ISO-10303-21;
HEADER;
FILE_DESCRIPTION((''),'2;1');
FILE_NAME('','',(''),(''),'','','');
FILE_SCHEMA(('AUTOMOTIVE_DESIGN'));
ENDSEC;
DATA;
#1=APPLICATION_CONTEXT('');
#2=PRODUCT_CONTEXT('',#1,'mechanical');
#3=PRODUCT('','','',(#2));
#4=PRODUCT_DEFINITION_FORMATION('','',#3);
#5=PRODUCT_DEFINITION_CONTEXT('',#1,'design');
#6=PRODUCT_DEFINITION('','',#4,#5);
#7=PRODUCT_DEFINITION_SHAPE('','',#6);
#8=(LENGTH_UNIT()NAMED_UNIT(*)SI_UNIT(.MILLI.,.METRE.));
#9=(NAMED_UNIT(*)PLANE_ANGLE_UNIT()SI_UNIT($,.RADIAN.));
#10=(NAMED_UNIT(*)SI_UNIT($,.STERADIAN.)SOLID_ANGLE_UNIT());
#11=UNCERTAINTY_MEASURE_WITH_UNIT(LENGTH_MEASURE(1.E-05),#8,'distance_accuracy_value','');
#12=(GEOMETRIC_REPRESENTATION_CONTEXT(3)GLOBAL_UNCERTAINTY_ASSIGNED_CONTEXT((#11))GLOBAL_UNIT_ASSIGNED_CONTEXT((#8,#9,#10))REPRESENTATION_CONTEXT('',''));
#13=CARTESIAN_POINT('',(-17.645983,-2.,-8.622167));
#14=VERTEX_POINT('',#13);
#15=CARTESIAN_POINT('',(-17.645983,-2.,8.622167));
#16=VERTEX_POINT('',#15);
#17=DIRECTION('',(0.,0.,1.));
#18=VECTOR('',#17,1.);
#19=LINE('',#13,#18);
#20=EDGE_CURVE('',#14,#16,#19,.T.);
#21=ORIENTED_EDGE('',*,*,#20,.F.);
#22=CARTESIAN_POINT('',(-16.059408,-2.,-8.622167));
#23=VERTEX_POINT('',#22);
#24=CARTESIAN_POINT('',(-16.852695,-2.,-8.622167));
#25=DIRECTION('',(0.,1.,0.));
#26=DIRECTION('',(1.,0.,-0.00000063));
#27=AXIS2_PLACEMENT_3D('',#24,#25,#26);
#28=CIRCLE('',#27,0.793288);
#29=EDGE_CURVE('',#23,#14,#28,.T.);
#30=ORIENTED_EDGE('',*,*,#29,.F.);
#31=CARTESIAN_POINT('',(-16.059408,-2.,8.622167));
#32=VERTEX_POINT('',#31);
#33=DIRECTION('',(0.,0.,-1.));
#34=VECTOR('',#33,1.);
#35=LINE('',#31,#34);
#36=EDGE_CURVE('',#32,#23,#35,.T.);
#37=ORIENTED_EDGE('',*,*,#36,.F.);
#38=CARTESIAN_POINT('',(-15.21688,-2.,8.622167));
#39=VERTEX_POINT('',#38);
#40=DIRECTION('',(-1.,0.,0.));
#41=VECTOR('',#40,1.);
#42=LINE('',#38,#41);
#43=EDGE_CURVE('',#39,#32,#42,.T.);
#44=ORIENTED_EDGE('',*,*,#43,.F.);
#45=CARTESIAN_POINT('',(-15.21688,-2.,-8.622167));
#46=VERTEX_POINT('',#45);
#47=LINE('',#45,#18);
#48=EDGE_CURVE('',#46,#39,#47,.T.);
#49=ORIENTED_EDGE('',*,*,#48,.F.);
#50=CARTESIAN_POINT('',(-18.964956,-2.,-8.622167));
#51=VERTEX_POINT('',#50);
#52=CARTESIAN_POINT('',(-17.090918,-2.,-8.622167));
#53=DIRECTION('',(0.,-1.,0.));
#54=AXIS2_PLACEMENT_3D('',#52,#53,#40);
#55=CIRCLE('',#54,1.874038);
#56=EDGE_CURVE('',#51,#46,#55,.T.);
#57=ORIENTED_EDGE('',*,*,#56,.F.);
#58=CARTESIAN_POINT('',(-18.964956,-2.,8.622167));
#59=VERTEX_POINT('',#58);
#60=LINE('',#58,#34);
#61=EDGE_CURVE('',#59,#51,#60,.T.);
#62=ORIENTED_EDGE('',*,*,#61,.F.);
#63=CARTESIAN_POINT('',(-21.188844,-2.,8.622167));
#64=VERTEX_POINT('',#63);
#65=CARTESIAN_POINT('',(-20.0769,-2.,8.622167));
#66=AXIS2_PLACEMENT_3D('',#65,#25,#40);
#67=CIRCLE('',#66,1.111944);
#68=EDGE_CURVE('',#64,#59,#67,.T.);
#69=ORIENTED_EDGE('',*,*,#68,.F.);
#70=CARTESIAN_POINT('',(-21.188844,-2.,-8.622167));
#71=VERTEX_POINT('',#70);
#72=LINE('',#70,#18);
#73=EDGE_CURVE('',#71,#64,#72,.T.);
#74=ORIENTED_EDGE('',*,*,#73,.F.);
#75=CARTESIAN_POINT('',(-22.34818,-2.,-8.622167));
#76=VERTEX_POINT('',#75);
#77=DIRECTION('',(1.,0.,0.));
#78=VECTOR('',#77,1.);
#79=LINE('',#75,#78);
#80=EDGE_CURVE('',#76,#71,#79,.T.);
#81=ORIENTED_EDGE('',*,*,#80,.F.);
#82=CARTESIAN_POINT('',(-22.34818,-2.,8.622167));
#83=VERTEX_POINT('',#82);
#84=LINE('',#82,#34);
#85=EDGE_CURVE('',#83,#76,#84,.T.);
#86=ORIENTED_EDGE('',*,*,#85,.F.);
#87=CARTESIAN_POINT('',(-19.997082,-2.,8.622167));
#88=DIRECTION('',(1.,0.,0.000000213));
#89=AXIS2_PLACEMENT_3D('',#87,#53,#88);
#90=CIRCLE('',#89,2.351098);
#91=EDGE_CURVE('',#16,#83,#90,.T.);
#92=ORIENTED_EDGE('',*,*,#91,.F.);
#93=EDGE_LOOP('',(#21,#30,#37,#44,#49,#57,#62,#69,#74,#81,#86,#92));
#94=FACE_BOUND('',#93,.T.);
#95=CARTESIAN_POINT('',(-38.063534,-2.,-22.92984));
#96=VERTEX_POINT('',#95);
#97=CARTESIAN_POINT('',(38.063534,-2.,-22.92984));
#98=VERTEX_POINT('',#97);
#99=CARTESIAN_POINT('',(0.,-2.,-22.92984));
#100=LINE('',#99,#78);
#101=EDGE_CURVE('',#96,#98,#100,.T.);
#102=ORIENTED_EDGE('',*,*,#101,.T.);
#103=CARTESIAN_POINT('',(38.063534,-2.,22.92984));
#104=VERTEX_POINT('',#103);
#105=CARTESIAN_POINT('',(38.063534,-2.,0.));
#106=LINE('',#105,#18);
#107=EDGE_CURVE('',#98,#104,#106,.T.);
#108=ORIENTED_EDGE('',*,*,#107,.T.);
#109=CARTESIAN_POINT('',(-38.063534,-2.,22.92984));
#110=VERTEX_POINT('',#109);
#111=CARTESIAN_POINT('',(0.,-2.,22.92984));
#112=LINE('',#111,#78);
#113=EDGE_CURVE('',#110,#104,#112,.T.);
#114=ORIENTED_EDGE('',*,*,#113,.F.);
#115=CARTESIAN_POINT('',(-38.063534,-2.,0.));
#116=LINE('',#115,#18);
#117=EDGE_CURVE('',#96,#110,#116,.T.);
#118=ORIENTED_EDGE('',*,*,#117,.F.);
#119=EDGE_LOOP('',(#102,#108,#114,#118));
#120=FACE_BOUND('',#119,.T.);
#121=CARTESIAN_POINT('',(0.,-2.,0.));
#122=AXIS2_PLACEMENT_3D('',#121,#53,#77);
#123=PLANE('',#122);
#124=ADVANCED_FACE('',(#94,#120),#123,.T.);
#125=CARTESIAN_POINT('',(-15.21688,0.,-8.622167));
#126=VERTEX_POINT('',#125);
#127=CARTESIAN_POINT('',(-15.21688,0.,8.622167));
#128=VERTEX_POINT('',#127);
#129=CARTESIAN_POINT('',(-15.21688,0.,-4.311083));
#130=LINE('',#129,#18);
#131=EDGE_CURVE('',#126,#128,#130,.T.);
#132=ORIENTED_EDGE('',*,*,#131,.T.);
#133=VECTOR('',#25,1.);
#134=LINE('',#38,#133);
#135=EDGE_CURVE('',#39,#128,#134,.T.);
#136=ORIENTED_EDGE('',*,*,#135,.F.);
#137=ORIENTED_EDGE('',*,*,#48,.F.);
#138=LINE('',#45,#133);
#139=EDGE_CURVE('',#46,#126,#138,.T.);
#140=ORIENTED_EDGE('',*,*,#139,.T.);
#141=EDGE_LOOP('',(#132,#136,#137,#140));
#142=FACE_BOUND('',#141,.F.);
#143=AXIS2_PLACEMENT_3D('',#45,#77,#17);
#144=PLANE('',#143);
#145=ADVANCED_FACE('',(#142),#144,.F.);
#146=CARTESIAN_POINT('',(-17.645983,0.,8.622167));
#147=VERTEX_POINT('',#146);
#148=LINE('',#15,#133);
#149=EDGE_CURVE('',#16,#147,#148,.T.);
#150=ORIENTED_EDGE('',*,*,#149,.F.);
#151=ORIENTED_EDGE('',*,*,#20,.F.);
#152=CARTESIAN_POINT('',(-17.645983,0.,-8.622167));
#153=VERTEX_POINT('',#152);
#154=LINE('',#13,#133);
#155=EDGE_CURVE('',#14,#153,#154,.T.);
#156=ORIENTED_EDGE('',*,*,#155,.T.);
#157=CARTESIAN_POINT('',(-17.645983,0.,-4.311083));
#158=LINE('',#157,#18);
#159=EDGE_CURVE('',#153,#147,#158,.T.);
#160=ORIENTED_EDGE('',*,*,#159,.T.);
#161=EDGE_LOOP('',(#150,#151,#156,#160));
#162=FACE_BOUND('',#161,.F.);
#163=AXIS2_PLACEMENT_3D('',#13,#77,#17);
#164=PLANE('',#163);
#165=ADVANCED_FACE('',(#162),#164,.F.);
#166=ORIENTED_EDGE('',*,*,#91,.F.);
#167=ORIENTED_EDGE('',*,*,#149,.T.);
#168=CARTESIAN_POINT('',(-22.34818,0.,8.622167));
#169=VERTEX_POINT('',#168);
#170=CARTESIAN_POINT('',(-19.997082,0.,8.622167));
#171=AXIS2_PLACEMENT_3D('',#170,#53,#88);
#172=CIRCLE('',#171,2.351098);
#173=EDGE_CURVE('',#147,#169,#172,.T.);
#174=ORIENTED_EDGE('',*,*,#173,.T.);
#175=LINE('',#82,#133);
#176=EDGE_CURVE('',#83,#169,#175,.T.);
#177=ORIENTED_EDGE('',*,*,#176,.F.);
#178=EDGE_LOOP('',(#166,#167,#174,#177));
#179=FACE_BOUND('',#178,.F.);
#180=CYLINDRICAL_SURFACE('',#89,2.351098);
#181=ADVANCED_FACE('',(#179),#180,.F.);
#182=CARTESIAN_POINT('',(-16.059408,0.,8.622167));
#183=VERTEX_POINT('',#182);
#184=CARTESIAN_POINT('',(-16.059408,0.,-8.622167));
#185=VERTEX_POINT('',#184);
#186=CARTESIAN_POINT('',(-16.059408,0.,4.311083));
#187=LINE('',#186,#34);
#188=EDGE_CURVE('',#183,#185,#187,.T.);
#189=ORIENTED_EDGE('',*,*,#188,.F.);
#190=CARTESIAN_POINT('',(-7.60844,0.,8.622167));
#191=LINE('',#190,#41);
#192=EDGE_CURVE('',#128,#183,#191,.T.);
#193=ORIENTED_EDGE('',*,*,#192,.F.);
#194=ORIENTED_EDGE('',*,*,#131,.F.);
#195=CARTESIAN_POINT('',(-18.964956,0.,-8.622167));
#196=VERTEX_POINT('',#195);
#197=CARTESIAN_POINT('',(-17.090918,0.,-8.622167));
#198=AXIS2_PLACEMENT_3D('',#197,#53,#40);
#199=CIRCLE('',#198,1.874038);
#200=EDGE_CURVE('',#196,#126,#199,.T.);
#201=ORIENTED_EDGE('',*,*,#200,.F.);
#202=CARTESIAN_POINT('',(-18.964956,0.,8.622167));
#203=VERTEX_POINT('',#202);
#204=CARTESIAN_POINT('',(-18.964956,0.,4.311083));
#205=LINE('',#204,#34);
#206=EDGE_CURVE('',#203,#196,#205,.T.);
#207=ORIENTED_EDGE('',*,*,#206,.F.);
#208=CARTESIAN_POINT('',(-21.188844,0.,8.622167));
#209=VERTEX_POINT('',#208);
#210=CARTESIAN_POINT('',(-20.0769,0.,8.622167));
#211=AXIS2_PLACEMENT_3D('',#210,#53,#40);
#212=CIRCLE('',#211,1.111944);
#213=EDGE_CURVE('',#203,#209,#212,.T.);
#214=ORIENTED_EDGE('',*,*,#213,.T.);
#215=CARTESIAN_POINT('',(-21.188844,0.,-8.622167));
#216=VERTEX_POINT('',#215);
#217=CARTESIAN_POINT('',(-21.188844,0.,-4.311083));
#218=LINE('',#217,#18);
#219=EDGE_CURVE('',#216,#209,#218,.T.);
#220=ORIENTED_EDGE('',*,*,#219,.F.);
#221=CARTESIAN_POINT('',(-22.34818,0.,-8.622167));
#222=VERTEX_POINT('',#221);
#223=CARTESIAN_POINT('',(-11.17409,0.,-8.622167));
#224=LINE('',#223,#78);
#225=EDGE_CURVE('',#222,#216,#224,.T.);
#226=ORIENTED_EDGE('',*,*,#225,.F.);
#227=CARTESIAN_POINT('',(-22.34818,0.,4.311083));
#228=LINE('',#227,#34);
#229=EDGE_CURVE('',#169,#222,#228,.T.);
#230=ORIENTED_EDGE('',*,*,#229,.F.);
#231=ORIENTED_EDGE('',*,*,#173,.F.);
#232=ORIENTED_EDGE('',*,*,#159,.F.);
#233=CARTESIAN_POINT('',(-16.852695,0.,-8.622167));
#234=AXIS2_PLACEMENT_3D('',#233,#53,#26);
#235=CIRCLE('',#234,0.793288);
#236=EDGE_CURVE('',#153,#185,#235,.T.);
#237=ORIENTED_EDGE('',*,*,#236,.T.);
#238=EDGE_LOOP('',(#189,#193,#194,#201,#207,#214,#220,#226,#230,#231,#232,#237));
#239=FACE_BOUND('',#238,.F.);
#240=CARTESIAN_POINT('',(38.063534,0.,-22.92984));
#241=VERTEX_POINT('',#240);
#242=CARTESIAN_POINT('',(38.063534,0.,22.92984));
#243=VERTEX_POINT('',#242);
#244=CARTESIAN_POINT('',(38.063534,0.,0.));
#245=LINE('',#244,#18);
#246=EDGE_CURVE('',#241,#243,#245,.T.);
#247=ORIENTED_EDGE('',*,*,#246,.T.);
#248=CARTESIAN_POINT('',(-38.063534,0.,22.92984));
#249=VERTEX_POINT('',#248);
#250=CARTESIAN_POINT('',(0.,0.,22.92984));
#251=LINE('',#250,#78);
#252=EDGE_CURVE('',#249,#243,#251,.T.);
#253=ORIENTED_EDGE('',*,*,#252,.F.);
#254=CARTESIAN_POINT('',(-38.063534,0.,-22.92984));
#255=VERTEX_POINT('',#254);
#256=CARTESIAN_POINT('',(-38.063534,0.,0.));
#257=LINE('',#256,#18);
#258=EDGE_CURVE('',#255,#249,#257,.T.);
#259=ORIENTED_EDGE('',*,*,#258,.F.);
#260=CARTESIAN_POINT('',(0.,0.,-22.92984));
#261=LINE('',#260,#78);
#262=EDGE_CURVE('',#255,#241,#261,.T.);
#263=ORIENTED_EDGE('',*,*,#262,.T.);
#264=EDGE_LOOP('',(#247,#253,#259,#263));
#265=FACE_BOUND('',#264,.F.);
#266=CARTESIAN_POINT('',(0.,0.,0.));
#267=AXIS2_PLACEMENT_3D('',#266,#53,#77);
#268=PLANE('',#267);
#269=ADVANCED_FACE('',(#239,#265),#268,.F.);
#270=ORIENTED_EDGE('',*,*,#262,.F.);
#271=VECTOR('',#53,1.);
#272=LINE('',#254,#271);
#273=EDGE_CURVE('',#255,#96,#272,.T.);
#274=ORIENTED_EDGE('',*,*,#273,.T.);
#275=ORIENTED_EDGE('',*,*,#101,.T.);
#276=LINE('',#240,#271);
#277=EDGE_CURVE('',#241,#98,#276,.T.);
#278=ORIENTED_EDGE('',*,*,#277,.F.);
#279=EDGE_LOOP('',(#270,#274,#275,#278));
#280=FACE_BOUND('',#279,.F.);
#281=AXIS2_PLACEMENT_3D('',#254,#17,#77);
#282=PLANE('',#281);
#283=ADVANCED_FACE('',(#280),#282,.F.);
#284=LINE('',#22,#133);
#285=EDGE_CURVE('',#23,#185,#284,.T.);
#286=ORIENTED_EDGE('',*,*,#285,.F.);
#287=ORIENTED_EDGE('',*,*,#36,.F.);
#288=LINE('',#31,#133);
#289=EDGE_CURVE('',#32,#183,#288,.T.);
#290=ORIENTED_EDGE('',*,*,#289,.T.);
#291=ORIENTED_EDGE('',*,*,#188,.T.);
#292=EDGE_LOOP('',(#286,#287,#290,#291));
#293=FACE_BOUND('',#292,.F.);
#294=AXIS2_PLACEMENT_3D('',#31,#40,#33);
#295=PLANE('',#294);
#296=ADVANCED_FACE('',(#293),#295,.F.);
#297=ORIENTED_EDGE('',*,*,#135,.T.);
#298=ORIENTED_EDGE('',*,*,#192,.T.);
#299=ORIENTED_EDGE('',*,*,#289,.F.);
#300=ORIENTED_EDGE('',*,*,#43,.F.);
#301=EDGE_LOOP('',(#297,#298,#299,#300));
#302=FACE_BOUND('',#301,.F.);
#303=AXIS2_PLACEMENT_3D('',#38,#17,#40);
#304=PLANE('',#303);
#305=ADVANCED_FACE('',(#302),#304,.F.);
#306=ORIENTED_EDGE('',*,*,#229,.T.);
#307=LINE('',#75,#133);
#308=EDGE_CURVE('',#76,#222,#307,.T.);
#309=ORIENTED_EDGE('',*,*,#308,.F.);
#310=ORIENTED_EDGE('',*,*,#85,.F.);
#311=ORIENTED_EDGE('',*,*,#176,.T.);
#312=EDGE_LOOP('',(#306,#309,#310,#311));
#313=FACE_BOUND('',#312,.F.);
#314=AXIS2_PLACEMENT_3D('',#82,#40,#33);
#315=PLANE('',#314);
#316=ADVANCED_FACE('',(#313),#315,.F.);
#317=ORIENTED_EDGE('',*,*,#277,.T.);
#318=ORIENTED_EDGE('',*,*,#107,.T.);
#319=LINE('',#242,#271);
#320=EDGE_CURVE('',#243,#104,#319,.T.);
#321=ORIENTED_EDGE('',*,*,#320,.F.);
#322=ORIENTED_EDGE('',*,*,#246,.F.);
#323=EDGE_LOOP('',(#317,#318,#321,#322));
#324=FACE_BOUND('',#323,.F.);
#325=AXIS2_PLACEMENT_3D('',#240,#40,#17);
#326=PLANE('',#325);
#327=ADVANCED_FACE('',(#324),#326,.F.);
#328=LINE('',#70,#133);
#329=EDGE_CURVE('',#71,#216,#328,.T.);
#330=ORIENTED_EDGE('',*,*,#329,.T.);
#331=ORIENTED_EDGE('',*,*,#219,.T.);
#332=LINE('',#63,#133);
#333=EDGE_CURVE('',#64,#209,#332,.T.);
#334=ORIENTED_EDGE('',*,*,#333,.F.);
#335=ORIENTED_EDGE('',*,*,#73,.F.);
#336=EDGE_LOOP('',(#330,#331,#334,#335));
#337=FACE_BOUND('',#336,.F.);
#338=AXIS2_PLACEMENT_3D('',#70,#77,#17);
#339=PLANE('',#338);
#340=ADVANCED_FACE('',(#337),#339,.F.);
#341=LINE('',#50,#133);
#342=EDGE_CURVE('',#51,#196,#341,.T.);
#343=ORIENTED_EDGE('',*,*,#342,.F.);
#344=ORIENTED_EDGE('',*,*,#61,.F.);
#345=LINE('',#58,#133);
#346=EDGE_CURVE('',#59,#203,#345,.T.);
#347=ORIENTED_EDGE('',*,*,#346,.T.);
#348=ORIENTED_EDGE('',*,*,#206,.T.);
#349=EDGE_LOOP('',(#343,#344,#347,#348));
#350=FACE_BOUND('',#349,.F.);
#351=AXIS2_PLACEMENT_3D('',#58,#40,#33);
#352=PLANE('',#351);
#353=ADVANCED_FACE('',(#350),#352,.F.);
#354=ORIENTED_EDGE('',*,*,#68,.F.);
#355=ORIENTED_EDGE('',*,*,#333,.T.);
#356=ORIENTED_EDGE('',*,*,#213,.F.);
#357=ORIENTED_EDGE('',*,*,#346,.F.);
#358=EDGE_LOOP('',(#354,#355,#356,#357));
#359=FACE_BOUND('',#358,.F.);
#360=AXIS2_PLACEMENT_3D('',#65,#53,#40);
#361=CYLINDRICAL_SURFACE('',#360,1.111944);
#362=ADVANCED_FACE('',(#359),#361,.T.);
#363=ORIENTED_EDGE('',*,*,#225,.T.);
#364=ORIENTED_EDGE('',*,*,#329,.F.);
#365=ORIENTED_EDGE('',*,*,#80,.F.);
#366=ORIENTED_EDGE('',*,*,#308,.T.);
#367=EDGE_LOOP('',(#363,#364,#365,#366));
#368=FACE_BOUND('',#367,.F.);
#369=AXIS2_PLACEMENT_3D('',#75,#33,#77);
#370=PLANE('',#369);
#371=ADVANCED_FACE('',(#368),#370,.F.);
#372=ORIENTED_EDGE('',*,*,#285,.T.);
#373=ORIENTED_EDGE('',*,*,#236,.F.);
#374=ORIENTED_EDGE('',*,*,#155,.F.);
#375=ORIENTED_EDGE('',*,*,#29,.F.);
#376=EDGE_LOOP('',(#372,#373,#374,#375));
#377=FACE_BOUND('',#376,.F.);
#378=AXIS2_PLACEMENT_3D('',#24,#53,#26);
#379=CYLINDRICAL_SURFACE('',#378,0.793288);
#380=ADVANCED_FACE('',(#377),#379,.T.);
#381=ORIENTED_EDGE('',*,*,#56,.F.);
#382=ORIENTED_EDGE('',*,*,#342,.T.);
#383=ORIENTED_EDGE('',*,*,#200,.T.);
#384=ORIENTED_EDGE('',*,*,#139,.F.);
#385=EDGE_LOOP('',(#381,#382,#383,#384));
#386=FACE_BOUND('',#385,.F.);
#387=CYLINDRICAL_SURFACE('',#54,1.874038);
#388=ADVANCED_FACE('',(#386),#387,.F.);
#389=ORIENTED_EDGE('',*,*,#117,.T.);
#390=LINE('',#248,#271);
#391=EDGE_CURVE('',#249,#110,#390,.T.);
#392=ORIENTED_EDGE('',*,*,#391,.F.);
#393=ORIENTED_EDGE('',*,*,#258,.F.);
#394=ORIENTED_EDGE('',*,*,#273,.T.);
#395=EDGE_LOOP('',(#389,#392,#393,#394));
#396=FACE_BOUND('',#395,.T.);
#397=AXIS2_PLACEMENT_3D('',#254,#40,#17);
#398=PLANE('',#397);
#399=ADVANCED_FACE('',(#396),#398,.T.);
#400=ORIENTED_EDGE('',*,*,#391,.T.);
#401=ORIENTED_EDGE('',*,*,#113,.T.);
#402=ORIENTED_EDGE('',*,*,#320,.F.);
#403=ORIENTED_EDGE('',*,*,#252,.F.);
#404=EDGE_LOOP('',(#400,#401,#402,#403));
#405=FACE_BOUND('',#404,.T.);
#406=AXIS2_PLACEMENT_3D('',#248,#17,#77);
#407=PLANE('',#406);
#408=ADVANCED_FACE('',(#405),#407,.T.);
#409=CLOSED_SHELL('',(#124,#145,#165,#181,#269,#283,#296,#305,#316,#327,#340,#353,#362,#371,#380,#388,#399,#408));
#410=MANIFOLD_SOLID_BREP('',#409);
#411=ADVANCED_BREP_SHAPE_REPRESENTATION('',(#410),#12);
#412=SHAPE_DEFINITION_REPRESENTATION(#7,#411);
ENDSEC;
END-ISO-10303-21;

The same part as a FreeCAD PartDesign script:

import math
import FreeCAD as App
import Part
import Sketcher
Q = App.Units.Quantity

doc = App.newDocument("Part")
params = doc.addObject("Spreadsheet::Sheet", "Params")
for row, (alias, value) in enumerate([
    ("pad1_length", "2 mm"),
], start=1):
    params.set(f"A{row}", alias)
    params.set(f"B{row}", "=" + value)
    params.setAlias(f"B{row}", alias)

body = doc.addObject("PartDesign::Body", "Body")

sketch1 = body.newObject("Sketcher::SketchObject", "Sketch")
sketch1.AttachmentSupport = (doc.getObject("XZ_Plane"), [""])
sketch1.MapMode = "FlatFace"
sketch1.addGeometry(Part.LineSegment(App.Vector(-38, 23, 0), App.Vector(-38, -23, 0)), False)
sketch1.addGeometry(Part.LineSegment(App.Vector(-38, -23, 0), App.Vector(38, -23, 0)), False)
sketch1.addGeometry(Part.LineSegment(App.Vector(38, -23, 0), App.Vector(38, 23, 0)), False)
sketch1.addGeometry(Part.LineSegment(App.Vector(38, 23, 0), App.Vector(-38, 23, 0)), False)
sketch1.addConstraint(Sketcher.Constraint("Coincident", 0, 2, 1, 1))
sketch1.addConstraint(Sketcher.Constraint("Coincident", 1, 2, 2, 1))
sketch1.addConstraint(Sketcher.Constraint("Coincident", 2, 2, 3, 1))
sketch1.addConstraint(Sketcher.Constraint("Coincident", 3, 2, 0, 1))
sketch1.addConstraint(Sketcher.Constraint("Vertical", 0))
sketch1.addConstraint(Sketcher.Constraint("Horizontal", 1))
sketch1.addConstraint(Sketcher.Constraint("Vertical", 2))
sketch1.addConstraint(Sketcher.Constraint("Horizontal", 3))
sketch1.addConstraint(Sketcher.Constraint("Symmetric", 0, 2, 2, 2, -1, 1))
sketch1.addConstraint(Sketcher.Constraint("DistanceY", 0, 2, 0, 1, Q("45.85968 mm")))
sketch1.addConstraint(Sketcher.Constraint("DistanceX", 1, 1, 1, 2, Q("76.127068 mm")))
pad1 = body.newObject("PartDesign::Pad", "Pad")
pad1.Profile = sketch1
pad1.setExpression("Length", "Params.pad1_length")

sketch2 = body.newObject("Sketcher::SketchObject", "Sketch001")
sketch2.AttachmentSupport = (doc.getObject("XZ_Plane"), [""])
sketch2.MapMode = "FlatFace"
sketch2.AttachmentOffset = App.Placement(App.Vector(0, 0, 2), App.Rotation())
sketch2.addGeometry(Part.LineSegment(App.Vector(-22.3, -8.6, 0), App.Vector(-21.2, -8.6, 0)), False)
sketch2.addGeometry(Part.LineSegment(App.Vector(-21.2, -8.6, 0), App.Vector(-21.2, 8.6, 0)), False)
sketch2.addGeometry(Part.ArcOfCircle(Part.Circle(App.Vector(-20.1, 8.6, 0), App.Vector(0, 0, 1), 1.1), math.radians(0), math.radians(180)), False)
sketch2.addGeometry(Part.LineSegment(App.Vector(-19, 8.6, 0), App.Vector(-19, -8.6, 0)), False)
sketch2.addGeometry(Part.ArcOfCircle(Part.Circle(App.Vector(-17.1, -8.6, 0), App.Vector(0, 0, 1), 1.9), math.radians(180), math.radians(360)), False)
sketch2.addGeometry(Part.LineSegment(App.Vector(-15.2, -8.6, 0), App.Vector(-15.2, 8.6, 0)), False)
sketch2.addGeometry(Part.LineSegment(App.Vector(-15.2, 8.6, 0), App.Vector(-16.1, 8.6, 0)), False)
sketch2.addGeometry(Part.LineSegment(App.Vector(-16.1, 8.6, 0), App.Vector(-16.1, -8.6, 0)), False)
sketch2.addGeometry(Part.ArcOfCircle(Part.Circle(App.Vector(-16.9, -8.6, 0), App.Vector(0, 0, 1), 0.8), math.radians(-180), math.radians(0)), False)
sketch2.addGeometry(Part.LineSegment(App.Vector(-17.6, -8.6, 0), App.Vector(-17.6, 8.6, 0)), False)
sketch2.addGeometry(Part.ArcOfCircle(Part.Circle(App.Vector(-20, 8.6, 0), App.Vector(0, 0, 1), 2.4), math.radians(0), math.radians(180)), False)
sketch2.addGeometry(Part.LineSegment(App.Vector(-22.3, 8.6, 0), App.Vector(-22.3, -8.6, 0)), False)
sketch2.addConstraint(Sketcher.Constraint("Coincident", 0, 2, 1, 1))
sketch2.addConstraint(Sketcher.Constraint("Tangent", 1, 2, 2, 2))
sketch2.addConstraint(Sketcher.Constraint("Tangent", 2, 1, 3, 1))
sketch2.addConstraint(Sketcher.Constraint("Tangent", 3, 2, 4, 1))
sketch2.addConstraint(Sketcher.Constraint("Tangent", 4, 2, 5, 1))
sketch2.addConstraint(Sketcher.Constraint("Coincident", 5, 2, 6, 1))
sketch2.addConstraint(Sketcher.Constraint("Coincident", 6, 2, 7, 1))
sketch2.addConstraint(Sketcher.Constraint("Tangent", 7, 2, 8, 2))
sketch2.addConstraint(Sketcher.Constraint("Tangent", 8, 1, 9, 1))
sketch2.addConstraint(Sketcher.Constraint("Tangent", 9, 2, 10, 1))
sketch2.addConstraint(Sketcher.Constraint("Tangent", 10, 2, 11, 1))
sketch2.addConstraint(Sketcher.Constraint("Coincident", 11, 2, 0, 1))
sketch2.addConstraint(Sketcher.Constraint("Horizontal", 0))
sketch2.addConstraint(Sketcher.Constraint("Vertical", 1))
sketch2.addConstraint(Sketcher.Constraint("Vertical", 3))
sketch2.addConstraint(Sketcher.Constraint("Vertical", 5))
sketch2.addConstraint(Sketcher.Constraint("Horizontal", 6))
sketch2.addConstraint(Sketcher.Constraint("Vertical", 7))
sketch2.addConstraint(Sketcher.Constraint("Vertical", 9))
sketch2.addConstraint(Sketcher.Constraint("Vertical", 11))
sketch2.addConstraint(Sketcher.Constraint("Horizontal", 4, 3, 8, 3))
sketch2.addConstraint(Sketcher.Constraint("Horizontal", 2, 3, 10, 3))
sketch2.addConstraint(Sketcher.Constraint("Horizontal", 8, 3, 0, 2))
sketch2.addConstraint(Sketcher.Constraint("Horizontal", 2, 1, 5, 2))
sketch2.addConstraint(Sketcher.Constraint("Radius", 10, Q("2.351098 mm")))
sketch2.addConstraint(Sketcher.Constraint("Radius", 4, Q("1.874038 mm")))
sketch2.addConstraint(Sketcher.Constraint("Radius", 2, Q("1.111944 mm")))
sketch2.addConstraint(Sketcher.Constraint("Radius", 8, Q("0.793288 mm")))
sketch2.addConstraint(Sketcher.Constraint("DistanceX", 6, 2, 6, 1, Q("0.842528 mm")))
sketch2.addConstraint(Sketcher.Constraint("DistanceX", 2, 3, -1, 1, Q("20.0769 mm")))
sketch2.addConstraint(Sketcher.Constraint("DistanceY", 1, 1, 1, 2, Q("17.244334 mm")))
sketch2.addConstraint(Sketcher.Constraint("DistanceY", -1, 1, 2, 3, Q("8.622167 mm")))
pocket1 = body.newObject("PartDesign::Pocket", "Pocket")
pocket1.Profile = sketch2
pocket1.Type = "ThroughAll"

doc.recompute()
